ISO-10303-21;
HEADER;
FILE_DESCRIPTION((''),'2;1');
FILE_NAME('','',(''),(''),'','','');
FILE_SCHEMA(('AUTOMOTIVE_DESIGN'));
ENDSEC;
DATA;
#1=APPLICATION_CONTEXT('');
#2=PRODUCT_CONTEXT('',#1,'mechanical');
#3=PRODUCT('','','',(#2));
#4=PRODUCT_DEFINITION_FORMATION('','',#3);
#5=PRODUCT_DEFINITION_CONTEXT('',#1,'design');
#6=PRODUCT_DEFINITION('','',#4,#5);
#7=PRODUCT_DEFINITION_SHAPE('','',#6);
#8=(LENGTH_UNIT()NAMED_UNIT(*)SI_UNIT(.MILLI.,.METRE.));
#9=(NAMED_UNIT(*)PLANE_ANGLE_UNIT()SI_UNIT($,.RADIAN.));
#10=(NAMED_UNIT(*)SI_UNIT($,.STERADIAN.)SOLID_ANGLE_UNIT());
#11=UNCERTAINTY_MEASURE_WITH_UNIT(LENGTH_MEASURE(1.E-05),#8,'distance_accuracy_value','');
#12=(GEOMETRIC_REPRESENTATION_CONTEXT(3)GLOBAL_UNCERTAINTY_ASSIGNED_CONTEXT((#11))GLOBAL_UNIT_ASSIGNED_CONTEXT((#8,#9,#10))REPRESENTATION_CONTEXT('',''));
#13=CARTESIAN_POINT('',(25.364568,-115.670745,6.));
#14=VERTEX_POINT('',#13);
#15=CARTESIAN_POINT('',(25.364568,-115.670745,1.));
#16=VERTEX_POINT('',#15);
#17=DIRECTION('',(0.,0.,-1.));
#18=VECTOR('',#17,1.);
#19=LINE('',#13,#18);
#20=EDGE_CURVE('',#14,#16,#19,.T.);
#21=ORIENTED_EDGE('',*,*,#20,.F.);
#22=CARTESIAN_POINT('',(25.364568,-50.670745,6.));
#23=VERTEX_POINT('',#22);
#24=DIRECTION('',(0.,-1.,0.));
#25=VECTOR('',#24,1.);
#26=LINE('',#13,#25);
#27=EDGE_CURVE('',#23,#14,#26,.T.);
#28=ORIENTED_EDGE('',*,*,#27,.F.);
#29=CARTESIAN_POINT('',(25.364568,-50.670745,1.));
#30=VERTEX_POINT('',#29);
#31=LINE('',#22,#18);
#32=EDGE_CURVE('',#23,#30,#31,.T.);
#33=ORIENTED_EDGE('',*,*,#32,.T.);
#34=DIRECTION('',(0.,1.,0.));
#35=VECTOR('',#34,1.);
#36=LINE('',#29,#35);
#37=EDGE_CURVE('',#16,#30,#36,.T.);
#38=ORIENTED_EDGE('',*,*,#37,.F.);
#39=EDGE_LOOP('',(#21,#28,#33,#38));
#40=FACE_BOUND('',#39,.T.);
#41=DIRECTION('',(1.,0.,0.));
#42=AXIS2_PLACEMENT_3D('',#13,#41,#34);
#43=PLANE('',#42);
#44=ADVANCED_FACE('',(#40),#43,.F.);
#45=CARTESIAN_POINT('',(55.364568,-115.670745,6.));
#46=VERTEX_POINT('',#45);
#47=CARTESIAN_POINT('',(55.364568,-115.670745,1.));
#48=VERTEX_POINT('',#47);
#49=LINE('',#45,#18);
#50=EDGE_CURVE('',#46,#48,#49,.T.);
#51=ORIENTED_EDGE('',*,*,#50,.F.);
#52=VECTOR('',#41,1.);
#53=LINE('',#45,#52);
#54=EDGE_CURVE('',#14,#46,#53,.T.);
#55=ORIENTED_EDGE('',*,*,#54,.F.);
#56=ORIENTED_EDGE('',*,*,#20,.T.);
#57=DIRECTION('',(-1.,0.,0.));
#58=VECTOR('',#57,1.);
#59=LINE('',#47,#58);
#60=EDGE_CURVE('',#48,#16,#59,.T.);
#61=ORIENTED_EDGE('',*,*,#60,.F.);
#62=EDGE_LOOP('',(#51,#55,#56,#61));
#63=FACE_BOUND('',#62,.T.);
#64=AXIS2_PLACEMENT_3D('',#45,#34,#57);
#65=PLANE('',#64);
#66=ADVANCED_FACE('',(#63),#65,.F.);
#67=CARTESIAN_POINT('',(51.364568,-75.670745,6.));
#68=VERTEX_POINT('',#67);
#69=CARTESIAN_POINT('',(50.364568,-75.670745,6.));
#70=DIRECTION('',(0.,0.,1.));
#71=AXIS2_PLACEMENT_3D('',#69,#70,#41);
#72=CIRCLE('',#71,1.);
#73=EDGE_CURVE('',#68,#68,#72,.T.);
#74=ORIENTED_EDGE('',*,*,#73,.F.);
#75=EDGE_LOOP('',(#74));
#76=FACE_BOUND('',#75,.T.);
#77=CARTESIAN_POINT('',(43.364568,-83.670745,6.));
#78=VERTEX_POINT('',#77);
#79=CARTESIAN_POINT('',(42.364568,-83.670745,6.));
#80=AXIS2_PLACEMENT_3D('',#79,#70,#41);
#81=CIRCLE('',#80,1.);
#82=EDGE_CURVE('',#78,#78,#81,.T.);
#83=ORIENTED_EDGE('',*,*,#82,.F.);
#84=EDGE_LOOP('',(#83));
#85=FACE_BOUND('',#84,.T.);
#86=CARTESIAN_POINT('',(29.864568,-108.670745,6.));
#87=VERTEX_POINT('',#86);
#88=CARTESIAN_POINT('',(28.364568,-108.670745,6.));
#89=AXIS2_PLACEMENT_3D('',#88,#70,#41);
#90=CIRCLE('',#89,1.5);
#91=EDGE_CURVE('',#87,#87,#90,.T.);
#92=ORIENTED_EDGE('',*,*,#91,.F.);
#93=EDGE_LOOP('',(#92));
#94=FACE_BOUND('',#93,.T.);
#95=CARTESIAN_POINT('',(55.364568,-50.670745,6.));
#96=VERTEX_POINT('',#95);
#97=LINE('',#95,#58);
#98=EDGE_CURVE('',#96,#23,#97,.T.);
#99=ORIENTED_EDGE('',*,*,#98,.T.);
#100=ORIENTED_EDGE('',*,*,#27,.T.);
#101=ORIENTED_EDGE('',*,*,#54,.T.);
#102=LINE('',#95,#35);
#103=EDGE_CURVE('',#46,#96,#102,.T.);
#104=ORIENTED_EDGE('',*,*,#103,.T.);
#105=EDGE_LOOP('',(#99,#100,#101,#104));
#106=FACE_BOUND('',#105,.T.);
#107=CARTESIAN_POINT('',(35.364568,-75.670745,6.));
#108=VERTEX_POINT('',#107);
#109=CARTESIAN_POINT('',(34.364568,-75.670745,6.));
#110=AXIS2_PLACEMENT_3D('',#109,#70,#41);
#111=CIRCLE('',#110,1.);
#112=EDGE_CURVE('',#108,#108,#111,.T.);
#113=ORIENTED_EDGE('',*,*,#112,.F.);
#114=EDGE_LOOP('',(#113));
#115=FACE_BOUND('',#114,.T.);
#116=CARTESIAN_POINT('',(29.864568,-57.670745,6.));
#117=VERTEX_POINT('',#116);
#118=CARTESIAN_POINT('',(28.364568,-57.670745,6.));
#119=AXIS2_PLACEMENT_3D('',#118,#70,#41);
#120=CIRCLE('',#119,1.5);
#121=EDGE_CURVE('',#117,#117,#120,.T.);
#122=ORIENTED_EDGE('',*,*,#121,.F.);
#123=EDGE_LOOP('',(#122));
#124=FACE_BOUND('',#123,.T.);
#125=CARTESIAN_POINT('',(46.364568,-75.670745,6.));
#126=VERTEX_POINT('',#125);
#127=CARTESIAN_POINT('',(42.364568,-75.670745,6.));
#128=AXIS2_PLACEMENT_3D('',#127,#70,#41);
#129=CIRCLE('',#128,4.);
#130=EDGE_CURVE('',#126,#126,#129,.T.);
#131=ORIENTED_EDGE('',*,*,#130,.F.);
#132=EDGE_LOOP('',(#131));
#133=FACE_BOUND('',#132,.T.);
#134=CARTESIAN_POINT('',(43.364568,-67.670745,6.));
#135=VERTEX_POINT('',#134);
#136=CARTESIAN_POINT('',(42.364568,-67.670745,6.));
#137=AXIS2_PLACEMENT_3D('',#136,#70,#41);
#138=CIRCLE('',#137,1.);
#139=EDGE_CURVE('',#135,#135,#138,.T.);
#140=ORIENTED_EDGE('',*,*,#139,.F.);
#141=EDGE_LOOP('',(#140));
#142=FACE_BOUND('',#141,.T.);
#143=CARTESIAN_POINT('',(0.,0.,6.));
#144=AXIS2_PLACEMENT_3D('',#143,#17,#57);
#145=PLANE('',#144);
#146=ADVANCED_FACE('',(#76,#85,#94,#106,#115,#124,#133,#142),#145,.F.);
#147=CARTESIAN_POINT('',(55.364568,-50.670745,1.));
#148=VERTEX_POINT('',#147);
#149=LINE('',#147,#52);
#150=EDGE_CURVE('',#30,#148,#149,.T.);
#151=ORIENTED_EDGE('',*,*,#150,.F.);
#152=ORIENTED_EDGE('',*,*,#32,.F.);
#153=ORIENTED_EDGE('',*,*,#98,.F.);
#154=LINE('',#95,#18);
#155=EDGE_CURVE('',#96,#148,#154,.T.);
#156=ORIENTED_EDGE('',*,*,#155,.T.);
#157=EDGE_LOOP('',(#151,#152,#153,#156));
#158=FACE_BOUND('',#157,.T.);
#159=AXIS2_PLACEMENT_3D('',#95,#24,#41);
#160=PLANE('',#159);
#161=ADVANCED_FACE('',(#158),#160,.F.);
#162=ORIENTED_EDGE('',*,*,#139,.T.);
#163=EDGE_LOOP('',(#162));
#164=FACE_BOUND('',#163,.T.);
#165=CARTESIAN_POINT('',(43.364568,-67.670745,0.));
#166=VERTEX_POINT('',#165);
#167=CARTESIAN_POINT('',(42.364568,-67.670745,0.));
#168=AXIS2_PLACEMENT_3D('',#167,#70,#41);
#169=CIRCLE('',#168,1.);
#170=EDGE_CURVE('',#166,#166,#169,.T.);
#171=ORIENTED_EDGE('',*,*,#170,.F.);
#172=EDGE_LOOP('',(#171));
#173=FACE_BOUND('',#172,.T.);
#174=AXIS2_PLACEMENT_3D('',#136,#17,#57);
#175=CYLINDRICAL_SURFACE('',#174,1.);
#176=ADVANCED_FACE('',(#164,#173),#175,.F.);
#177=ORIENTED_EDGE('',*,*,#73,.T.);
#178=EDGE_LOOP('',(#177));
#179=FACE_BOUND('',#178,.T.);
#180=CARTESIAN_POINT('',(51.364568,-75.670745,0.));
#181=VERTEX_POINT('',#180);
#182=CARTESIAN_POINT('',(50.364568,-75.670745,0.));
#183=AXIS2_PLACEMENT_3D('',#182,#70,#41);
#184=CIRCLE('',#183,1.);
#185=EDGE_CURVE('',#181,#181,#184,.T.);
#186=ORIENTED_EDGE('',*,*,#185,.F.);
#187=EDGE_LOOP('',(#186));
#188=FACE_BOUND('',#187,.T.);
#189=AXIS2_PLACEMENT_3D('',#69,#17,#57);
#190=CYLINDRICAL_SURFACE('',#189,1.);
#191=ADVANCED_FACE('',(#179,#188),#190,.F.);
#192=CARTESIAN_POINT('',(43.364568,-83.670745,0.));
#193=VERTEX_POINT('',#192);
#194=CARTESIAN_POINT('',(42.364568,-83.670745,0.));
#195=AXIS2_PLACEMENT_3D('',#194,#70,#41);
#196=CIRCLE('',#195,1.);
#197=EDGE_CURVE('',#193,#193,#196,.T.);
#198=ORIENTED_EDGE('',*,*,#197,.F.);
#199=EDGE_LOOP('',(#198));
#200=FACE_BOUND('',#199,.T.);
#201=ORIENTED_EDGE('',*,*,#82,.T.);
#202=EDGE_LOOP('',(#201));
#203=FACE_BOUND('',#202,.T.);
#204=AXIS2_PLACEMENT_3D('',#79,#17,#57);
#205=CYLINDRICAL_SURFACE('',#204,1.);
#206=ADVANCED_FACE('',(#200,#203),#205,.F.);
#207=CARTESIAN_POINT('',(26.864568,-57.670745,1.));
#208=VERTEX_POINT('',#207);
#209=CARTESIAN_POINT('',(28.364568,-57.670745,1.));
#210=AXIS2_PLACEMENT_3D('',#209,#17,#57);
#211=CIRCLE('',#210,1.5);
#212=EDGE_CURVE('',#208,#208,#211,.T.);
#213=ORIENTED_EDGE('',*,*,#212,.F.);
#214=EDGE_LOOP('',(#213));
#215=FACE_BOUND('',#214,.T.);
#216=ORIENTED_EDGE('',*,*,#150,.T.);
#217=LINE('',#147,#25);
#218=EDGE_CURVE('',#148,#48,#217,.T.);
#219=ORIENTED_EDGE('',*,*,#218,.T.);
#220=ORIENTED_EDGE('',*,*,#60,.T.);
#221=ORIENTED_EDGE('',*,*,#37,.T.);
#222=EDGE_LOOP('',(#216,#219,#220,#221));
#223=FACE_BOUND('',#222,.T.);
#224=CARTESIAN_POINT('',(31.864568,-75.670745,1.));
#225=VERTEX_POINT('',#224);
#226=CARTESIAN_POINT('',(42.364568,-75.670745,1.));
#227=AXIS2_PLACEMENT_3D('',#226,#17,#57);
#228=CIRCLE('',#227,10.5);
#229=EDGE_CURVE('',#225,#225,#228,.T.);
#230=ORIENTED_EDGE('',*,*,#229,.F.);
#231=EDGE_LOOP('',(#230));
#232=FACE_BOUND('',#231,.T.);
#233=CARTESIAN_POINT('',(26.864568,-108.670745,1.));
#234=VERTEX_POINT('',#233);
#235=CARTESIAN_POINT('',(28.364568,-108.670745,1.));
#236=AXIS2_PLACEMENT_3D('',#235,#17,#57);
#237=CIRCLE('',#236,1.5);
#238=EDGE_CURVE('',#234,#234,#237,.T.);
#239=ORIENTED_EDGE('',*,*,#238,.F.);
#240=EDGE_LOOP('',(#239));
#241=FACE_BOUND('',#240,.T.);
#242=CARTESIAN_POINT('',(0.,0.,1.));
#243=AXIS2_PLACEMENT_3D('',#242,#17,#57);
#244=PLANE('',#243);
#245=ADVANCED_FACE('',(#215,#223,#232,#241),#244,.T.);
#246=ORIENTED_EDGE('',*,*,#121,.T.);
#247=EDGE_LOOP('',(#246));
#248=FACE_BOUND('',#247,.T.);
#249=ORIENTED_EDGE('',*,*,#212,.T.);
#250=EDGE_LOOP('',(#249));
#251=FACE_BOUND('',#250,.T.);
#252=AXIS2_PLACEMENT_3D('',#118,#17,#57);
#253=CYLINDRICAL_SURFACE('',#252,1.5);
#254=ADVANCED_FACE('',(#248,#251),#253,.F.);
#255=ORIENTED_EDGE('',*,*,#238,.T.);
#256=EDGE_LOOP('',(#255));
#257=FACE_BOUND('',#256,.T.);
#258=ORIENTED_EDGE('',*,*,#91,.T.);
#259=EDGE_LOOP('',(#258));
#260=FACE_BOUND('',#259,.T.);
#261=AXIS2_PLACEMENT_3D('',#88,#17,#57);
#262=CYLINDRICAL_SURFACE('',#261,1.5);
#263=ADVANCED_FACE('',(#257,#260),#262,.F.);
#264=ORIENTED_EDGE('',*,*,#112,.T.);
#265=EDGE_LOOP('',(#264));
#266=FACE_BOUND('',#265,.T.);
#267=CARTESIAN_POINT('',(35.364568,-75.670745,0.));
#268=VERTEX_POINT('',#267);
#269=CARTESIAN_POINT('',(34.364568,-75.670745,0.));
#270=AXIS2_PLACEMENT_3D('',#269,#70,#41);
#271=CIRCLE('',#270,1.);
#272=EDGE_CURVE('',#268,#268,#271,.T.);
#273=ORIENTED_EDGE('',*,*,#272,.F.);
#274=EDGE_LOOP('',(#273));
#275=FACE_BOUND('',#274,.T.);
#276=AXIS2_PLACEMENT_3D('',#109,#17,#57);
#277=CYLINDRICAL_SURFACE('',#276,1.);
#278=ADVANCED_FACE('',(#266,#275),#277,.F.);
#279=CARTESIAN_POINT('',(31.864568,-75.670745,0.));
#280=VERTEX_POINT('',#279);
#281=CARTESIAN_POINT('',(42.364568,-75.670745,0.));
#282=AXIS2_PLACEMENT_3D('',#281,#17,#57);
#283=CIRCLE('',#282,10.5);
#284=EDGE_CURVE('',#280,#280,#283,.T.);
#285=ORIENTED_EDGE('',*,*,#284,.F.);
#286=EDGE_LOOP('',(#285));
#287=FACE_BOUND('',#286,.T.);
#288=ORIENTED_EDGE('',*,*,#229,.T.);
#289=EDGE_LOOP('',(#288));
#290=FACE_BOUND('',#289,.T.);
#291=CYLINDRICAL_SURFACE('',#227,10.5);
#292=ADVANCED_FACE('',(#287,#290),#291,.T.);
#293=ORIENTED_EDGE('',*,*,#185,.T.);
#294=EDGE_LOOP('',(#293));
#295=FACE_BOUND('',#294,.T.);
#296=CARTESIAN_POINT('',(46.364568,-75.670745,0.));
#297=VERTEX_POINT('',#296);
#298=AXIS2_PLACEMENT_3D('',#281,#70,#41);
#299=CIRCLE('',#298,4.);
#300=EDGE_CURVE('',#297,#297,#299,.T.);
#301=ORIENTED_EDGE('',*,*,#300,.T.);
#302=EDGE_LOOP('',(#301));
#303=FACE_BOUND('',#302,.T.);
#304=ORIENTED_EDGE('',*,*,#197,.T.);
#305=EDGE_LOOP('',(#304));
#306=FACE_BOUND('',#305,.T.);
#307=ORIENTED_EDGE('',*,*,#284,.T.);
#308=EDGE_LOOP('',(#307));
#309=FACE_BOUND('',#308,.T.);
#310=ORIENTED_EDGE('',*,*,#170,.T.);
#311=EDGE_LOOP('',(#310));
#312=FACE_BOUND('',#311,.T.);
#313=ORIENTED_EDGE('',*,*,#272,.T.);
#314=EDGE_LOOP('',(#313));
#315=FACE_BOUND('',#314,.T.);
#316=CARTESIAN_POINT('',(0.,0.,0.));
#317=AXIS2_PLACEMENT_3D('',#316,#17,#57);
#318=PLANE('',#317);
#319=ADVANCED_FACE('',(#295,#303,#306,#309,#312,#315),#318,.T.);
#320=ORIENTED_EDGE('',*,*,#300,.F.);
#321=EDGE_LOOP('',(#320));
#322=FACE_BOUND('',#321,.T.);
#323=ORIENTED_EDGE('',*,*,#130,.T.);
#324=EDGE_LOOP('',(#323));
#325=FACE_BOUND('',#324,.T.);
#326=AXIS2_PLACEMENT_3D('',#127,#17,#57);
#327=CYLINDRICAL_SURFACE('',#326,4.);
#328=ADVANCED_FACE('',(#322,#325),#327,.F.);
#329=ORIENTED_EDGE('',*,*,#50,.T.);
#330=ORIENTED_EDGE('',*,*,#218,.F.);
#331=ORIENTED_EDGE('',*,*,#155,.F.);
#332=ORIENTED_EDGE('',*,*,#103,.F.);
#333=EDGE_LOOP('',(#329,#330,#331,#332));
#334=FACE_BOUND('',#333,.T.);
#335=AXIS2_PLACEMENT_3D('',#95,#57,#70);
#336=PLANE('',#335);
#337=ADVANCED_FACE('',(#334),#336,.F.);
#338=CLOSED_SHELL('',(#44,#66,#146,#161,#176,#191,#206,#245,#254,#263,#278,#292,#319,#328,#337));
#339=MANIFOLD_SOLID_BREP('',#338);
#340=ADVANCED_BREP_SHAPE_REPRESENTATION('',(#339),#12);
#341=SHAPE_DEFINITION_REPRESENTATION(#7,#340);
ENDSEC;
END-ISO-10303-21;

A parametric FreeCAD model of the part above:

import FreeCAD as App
import Part
import Sketcher
from FreeCAD import Vector
Q = App.Units.Quantity

doc = App.newDocument("Part")
body = doc.addObject("PartDesign::Body", "Body")

# Sketch on XY plane
sketch1 = doc.addObject("Sketcher::SketchObject", "Sketch")
body.addObject(sketch1)
sketch1.AttachmentSupport = (doc.XY_Plane, [""])
sketch1.MapMode = "FlatFace"
sketch1.addGeometry([
    Part.LineSegment(Vector(25.4, -50.7, 0), Vector(25.4, -115.7, 0)),  # 0
    Part.LineSegment(Vector(25.4, -115.7, 0), Vector(55.4, -115.7, 0)),  # 1
    Part.LineSegment(Vector(55.4, -115.7, 0), Vector(55.4, -50.7, 0)),  # 2
    Part.LineSegment(Vector(55.4, -50.7, 0), Vector(25.4, -50.7, 0)),  # 3
    Part.Circle(Vector(28.4, -108.7, 0), Vector(0, 0, 1), 1.5),  # 4
    Part.Circle(Vector(42.4, -83.7, 0), Vector(0, 0, 1), 1),  # 5
    Part.Circle(Vector(34.4, -75.7, 0), Vector(0, 0, 1), 1),  # 6
    Part.Circle(Vector(28.4, -57.7, 0), Vector(0, 0, 1), 1.5),  # 7
    Part.Circle(Vector(42.4, -75.7, 0), Vector(0, 0, 1), 4),  # 8
    Part.Circle(Vector(50.4, -75.7, 0), Vector(0, 0, 1), 1),  # 9
    Part.Circle(Vector(42.4, -67.7, 0), Vector(0, 0, 1), 1),  # 10
], False)
sketch1.addConstraint([
    Sketcher.Constraint("Coincident", 0, 2, 1, 1),
    Sketcher.Constraint("Coincident", 1, 2, 2, 1),
    Sketcher.Constraint("Coincident", 2, 2, 3, 1),
    Sketcher.Constraint("Coincident", 3, 2, 0, 1),
    Sketcher.Constraint("Vertical", 0),
    Sketcher.Constraint("Horizontal", 1),
    Sketcher.Constraint("Vertical", 2),
    Sketcher.Constraint("Horizontal", 3),
    Sketcher.Constraint("Equal", 5, 6),
    Sketcher.Constraint("Equal", 4, 7),
    Sketcher.Constraint("Equal", 6, 9),
    Sketcher.Constraint("Equal", 9, 10),
    Sketcher.Constraint("Horizontal", 6, 3, 8, 3),
    Sketcher.Constraint("Horizontal", 8, 3, 9, 3),
    Sketcher.Constraint("Vertical", 4, 3, 7, 3),
    Sketcher.Constraint("Vertical", 5, 3, 8, 3),
    Sketcher.Constraint("Vertical", 8, 3, 10, 3),
    Sketcher.Constraint("Diameter", 4, Q("3 mm")),
    Sketcher.Constraint("Diameter", 5, Q("2 mm")),
    Sketcher.Constraint("Diameter", 8, Q("8 mm")),
    Sketcher.Constraint("DistanceX", 1, 1, 1, 2, Q("30 mm")),
    Sketcher.Constraint("DistanceY", 0, 2, 0, 1, Q("65 mm")),
    Sketcher.Constraint("DistanceX", 4, 3, 5, 3, Q("14 mm")),
    Sketcher.Constraint("DistanceY", 4, 3, 5, 3, Q("25 mm")),
    Sketcher.Constraint("DistanceX", 6, 3, 5, 3, Q("8 mm")),
    Sketcher.Constraint("DistanceY", 5, 3, 6, 3, Q("8 mm")),
    Sketcher.Constraint("DistanceY", 6, 3, 7, 3, Q("18 mm")),
    Sketcher.Constraint("DistanceX", 8, 3, 9, 3, Q("8 mm")),
    Sketcher.Constraint("DistanceY", 8, 3, 10, 3, Q("8 mm")),
    Sketcher.Constraint("DistanceX", 0, 2, 4, 3, Q("3 mm")),
    Sketcher.Constraint("DistanceY", 0, 2, 4, 3, Q("7 mm")),
    Sketcher.Constraint("DistanceX", -1, 1, 4, 3, Q("28.364568 mm")),
    Sketcher.Constraint("DistanceY", 4, 3, -1, 1, Q("108.670745 mm")),
])
pad1 = doc.addObject("PartDesign::Pad", "Pad")
body.addObject(pad1)
pad1.Profile = sketch1
pad1.Length = 6

# Sketch on XY plane
sketch2 = doc.addObject("Sketcher::SketchObject", "Sketch001")
body.addObject(sketch2)
sketch2.AttachmentSupport = (doc.XY_Plane, [""])
sketch2.MapMode = "FlatFace"
sketch2.addGeometry([
    Part.LineSegment(Vector(55, -51, 0), Vector(55, -116, 0)),  # 0
    Part.LineSegment(Vector(55, -116, 0), Vector(25, -116, 0)),  # 1
    Part.LineSegment(Vector(25, -116, 0), Vector(25, -51, 0)),  # 2
    Part.LineSegment(Vector(25, -51, 0), Vector(55, -51, 0)),  # 3
    Part.Circle(Vector(42, -76, 0), Vector(0, 0, 1), 10),  # 4
], False)
sketch2.addConstraint([
    Sketcher.Constraint("Coincident", 0, 2, 1, 1),
    Sketcher.Constraint("Coincident", 1, 2, 2, 1),
    Sketcher.Constraint("Coincident", 2, 2, 3, 1),
    Sketcher.Constraint("Coincident", 3, 2, 0, 1),
    Sketcher.Constraint("Vertical", 0),
    Sketcher.Constraint("Horizontal", 1),
    Sketcher.Constraint("Vertical", 2),
    Sketcher.Constraint("Horizontal", 3),
    Sketcher.Constraint("Diameter", 4, Q("21 mm")),
    Sketcher.Constraint("DistanceX", 1, 2, 1, 1, Q("30 mm")),
    Sketcher.Constraint("DistanceY", 0, 2, 0, 1, Q("65 mm")),
    Sketcher.Constraint("DistanceX", 4, 3, 0, 2, Q("13 mm")),
    Sketcher.Constraint("DistanceY", 0, 2, 4, 3, Q("40 mm")),
    Sketcher.Constraint("DistanceX", -1, 1, 4, 3, Q("42.364568 mm")),
    Sketcher.Constraint("DistanceY", 4, 3, -1, 1, Q("75.670745 mm")),
])
pocket1 = doc.addObject("PartDesign::Pocket", "Pocket")
body.addObject(pocket1)
pocket1.Profile = sketch2
pocket1.Length = 1
pocket1.Reversed = True

doc.recompute()
